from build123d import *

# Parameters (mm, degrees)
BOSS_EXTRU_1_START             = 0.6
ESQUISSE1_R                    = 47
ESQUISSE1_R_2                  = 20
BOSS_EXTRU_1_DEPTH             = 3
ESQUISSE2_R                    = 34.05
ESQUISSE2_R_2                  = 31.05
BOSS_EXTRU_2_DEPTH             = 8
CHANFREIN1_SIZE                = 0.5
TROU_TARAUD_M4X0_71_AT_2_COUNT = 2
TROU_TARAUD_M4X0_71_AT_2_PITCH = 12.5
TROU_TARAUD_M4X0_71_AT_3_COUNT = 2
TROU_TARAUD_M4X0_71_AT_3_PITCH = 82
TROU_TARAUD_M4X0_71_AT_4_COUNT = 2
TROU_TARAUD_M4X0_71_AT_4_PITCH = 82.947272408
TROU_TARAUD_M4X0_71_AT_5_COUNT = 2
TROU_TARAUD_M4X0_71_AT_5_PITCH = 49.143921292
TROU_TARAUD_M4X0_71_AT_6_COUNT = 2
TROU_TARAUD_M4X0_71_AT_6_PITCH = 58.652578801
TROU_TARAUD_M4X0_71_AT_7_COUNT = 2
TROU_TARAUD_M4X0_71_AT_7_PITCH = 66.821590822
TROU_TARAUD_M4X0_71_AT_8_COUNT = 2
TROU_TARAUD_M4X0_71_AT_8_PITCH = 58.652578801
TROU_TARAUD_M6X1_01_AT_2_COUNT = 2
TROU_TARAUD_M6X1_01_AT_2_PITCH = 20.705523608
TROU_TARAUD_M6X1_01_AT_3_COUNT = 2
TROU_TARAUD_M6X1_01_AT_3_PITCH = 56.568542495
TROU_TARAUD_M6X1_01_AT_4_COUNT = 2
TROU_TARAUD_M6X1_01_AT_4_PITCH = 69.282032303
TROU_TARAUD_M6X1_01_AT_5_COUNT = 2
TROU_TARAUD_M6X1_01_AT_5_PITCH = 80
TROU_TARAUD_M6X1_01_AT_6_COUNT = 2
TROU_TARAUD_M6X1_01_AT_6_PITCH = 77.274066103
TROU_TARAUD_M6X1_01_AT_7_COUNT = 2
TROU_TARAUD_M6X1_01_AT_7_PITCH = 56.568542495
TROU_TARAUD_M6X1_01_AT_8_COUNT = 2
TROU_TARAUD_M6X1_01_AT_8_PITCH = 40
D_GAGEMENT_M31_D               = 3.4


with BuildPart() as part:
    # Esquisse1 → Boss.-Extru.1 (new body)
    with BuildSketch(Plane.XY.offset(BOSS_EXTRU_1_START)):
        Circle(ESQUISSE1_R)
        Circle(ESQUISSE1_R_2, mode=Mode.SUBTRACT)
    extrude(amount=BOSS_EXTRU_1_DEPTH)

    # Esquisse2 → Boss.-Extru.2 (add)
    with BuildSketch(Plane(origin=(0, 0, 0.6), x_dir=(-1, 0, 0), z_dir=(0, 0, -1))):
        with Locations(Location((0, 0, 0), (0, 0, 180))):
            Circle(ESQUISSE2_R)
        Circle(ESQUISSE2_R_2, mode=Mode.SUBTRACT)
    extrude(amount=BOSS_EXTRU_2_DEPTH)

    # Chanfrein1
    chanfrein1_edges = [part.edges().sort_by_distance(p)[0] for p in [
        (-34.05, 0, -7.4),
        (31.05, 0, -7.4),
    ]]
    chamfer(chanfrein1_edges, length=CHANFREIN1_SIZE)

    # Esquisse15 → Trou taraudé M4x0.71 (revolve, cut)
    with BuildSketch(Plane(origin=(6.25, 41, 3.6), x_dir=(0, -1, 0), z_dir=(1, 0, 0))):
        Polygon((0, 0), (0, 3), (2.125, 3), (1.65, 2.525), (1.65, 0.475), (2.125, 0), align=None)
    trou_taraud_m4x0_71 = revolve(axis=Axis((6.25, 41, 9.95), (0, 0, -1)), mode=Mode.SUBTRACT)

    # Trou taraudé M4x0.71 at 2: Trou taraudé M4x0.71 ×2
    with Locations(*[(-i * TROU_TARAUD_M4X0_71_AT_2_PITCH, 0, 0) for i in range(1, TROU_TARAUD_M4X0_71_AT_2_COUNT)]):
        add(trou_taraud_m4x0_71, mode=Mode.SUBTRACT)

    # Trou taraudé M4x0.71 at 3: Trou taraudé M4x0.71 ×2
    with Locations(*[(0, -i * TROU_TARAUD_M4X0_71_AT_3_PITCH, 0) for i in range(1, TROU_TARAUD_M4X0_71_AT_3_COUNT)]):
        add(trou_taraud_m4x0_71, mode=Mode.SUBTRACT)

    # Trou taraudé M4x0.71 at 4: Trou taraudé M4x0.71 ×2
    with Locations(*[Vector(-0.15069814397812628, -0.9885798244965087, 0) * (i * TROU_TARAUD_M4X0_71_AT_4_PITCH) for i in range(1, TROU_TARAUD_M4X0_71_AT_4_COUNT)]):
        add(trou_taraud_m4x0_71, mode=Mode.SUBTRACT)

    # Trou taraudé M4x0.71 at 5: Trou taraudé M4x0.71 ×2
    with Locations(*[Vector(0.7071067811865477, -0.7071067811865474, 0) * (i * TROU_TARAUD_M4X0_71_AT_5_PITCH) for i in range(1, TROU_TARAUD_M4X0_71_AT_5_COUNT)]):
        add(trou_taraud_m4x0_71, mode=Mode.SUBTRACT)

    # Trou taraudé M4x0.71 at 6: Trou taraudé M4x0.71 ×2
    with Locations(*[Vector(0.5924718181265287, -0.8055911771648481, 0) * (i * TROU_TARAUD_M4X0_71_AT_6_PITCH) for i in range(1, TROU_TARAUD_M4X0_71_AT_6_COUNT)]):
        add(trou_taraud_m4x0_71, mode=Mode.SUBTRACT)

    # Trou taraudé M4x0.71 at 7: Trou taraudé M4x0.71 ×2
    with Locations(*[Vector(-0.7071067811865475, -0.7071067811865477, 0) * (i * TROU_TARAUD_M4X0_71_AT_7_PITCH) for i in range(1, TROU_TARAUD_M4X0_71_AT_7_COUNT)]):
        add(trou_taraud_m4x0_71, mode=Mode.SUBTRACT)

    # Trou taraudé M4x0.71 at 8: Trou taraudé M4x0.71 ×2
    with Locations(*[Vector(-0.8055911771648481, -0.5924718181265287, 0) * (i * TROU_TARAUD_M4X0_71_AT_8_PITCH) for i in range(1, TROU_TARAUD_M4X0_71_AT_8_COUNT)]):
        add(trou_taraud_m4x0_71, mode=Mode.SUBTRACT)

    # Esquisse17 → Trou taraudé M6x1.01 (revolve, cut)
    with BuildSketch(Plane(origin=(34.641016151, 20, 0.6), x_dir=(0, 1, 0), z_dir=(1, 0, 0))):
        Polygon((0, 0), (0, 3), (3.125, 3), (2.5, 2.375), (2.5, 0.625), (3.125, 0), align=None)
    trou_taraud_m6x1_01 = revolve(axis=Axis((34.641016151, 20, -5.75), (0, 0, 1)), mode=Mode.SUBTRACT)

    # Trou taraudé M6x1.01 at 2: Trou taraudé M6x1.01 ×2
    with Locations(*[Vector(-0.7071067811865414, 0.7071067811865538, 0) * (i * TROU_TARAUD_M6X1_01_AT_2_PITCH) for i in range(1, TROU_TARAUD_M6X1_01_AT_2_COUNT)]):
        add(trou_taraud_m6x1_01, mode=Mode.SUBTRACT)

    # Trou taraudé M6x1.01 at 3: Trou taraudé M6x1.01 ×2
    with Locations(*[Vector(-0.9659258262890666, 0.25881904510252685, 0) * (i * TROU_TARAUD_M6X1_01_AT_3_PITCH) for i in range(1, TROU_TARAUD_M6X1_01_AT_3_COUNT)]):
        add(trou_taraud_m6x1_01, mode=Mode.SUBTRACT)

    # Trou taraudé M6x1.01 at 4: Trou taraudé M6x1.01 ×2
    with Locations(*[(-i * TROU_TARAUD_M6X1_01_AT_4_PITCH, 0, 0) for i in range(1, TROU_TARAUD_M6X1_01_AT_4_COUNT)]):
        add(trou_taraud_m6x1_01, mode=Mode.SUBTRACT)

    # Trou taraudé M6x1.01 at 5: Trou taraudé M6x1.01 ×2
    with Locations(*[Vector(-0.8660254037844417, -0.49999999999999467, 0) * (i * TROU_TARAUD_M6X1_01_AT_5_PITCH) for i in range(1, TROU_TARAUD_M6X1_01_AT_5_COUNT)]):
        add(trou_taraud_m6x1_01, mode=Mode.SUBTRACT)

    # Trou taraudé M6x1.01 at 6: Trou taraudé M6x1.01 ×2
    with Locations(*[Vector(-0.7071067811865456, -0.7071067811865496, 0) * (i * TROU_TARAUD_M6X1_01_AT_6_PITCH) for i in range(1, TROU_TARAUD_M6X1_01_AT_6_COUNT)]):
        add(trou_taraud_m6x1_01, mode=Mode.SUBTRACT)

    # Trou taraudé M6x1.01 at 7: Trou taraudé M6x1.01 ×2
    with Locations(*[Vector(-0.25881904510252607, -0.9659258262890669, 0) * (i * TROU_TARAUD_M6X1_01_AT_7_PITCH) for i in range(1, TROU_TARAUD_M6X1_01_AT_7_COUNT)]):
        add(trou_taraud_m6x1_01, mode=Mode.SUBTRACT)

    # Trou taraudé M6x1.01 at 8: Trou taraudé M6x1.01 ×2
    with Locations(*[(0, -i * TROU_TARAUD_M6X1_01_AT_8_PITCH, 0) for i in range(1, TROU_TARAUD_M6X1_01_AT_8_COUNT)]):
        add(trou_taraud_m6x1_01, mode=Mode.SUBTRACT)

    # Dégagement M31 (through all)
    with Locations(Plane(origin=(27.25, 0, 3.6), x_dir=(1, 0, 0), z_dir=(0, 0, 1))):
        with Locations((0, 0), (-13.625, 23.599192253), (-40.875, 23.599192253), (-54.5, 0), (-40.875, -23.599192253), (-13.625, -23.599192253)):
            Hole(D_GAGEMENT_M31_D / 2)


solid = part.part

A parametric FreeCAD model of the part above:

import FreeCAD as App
import Part
import Sketcher


def edges_at(feature, points):
    """Names of the edges that pass closest to the given points."""
    edges = feature.Shape.Edges
    near = lambda p: min(range(len(edges)), key=lambda i: edges[i].distToShape(Part.Vertex(*p))[0])
    return sorted({f"Edge{near(p) + 1}" for p in points})

doc = App.newDocument("Part")
body = doc.addObject("PartDesign::Body", "Body")

# Sketch on XY plane
sketch1 = body.newObject("Sketcher::SketchObject", "Sketch")
sketch1.AttachmentSupport = (doc.getObject("XY_Plane"), [""])
sketch1.MapMode = "FlatFace"
sketch1.AttachmentOffset = App.Placement(App.Vector(0, 0, 0.6), App.Rotation())
sketch1.addGeometry(Part.Circle(App.Vector(0, 0, 0), App.Vector(0, 0, 1), 47), False)
sketch1.addGeometry(Part.Circle(App.Vector(0, 0, 0), App.Vector(0, 0, 1), 20), False)
sketch1.addConstraint(Sketcher.Constraint("Coincident", 0, 3, -1, 1))
sketch1.addConstraint(Sketcher.Constraint("Coincident", 1, 3, -1, 1))
sketch1.addConstraint(Sketcher.Constraint("Diameter", 0, 94.0))
sketch1.addConstraint(Sketcher.Constraint("Diameter", 1, 40.0))
pad1 = body.newObject("PartDesign::Pad", "Pad")
pad1.Profile = sketch1
pad1.Length = 3

# Sketch on XY plane
sketch2 = body.newObject("Sketcher::SketchObject", "Sketch001")
sketch2.AttachmentSupport = (doc.getObject("XY_Plane"), [""])
sketch2.MapMode = "FlatFace"
sketch2.AttachmentOffset = App.Placement(App.Vector(0, 0, 0.6), App.Rotation())
sketch2.addGeometry(Part.Circle(App.Vector(0, 0, 0), App.Vector(0, 0, 1), 34.05), False)
sketch2.addGeometry(Part.Circle(App.Vector(0, 0, 0), App.Vector(0, 0, 1), 31.05), False)
sketch2.addConstraint(Sketcher.Constraint("Coincident", 0, 3, -1, 1))
sketch2.addConstraint(Sketcher.Constraint("Coincident", 1, 3, -1, 1))
sketch2.addConstraint(Sketcher.Constraint("Diameter", 0, 68.1))
sketch2.addConstraint(Sketcher.Constraint("Diameter", 1, 62.1))
pad2 = body.newObject("PartDesign::Pad", "Pad001")
pad2.Profile = sketch2
pad2.Length = 8
pad2.Reversed = True
doc.recompute()

chamfer = body.newObject("PartDesign::Chamfer", "Chamfer")
chamfer.Base = (pad2, edges_at(pad2, [(-34.05, 0, -7.4), (31.05, 0, -7.4)]))
chamfer.Size = 0.5

# Sketch on YZ plane
sketch3 = body.newObject("Sketcher::SketchObject", "Sketch002")
sketch3.AttachmentSupport = (doc.getObject("YZ_Plane"), [""])
sketch3.MapMode = "FlatFace"
sketch3.AttachmentOffset = App.Placement(App.Vector(0, 0, 6.25), App.Rotation())
sketch3.addGeometry(Part.LineSegment(App.Vector(41, 0.6, 0), App.Vector(41, 3.6, 0)), False)
sketch3.addGeometry(Part.LineSegment(App.Vector(41, 3.6, 0), App.Vector(38.875, 3.6, 0)), False)
sketch3.addGeometry(Part.LineSegment(App.Vector(38.875, 3.6, 0), App.Vector(39.35, 3.125, 0)), False)
sketch3.addGeometry(Part.LineSegment(App.Vector(39.35, 3.125, 0), App.Vector(39.35, 1.075, 0)), False)
sketch3.addGeometry(Part.LineSegment(App.Vector(39.35, 1.075, 0), App.Vector(38.875, 0.6, 0)), False)
sketch3.addGeometry(Part.LineSegment(App.Vector(38.875, 0.6, 0), App.Vector(41, 0.6, 0)), False)
sketch3.addGeometry(Part.LineSegment(App.Vector(41, 3.6, 0), App.Vector(41, 0.6, 0)), True)  # axis
sketch3.addConstraint(Sketcher.Constraint("Coincident", 0, 2, 1, 1))
sketch3.addConstraint(Sketcher.Constraint("Coincident", 1, 2, 2, 1))
sketch3.addConstraint(Sketcher.Constraint("Coincident", 2, 2, 3, 1))
sketch3.addConstraint(Sketcher.Constraint("Coincident", 3, 2, 4, 1))
sketch3.addConstraint(Sketcher.Constraint("Coincident", 4, 2, 5, 1))
sketch3.addConstraint(Sketcher.Constraint("Coincident", 5, 2, 0, 1))
sketch3.addConstraint(Sketcher.Constraint("Vertical", 0))
sketch3.addConstraint(Sketcher.Constraint("Horizontal", 1))
sketch3.addConstraint(Sketcher.Constraint("Vertical", 3))
sketch3.addConstraint(Sketcher.Constraint("Horizontal", 5))
sketch3.addConstraint(Sketcher.Constraint("Vertical", 6))
sketch3.addConstraint(Sketcher.Constraint("Coincident", 6, 1, 0, 2))
sketch3.addConstraint(Sketcher.Constraint("Perpendicular", 2, 4))
sketch3.addConstraint(Sketcher.Constraint("Horizontal", 4, 2, 6, 2))
sketch3.addConstraint(Sketcher.Constraint("Vertical", 1, 2, 4, 2))
sketch3.addConstraint(Sketcher.Constraint("Equal", 2, 4))
sketch3.addConstraint(Sketcher.Constraint("DistanceY", 0, 1, 0, 2, 3.0))
sketch3.addConstraint(Sketcher.Constraint("DistanceX", -1, 1, 0, 2, 41.0))
sketch3.addConstraint(Sketcher.Constraint("DistanceY", 3, 2, 3, 1, 2.05))
sketch3.addConstraint(Sketcher.Constraint("DistanceY", -1, 1, 0, 2, 3.6))
sketch3.addConstraint(Sketcher.Constraint("DistanceX", 1, 2, 1, 1, 2.125))
groove = body.newObject("PartDesign::Groove", "Groove")
groove.Profile = sketch3
groove.ReferenceAxis = (sketch3, ["Axis0"])
groove.Angle = 360
doc.recompute()

linearpattern = body.newObject("PartDesign::LinearPattern", "LinearPattern")
linearpattern.Originals = [groove]
linearpattern.Direction = (doc.getObject("X_Axis"), [""])
linearpattern.Mode = "offset"
linearpattern.Offset = 12.5
linearpattern.Occurrences = 2
linearpattern.Reversed = True
body.Tip = linearpattern
doc.recompute()

linearpattern2 = body.newObject("PartDesign::LinearPattern", "LinearPattern001")
linearpattern2.Originals = [groove]
linearpattern2.Direction = (doc.getObject("Y_Axis"), [""])
linearpattern2.Mode = "offset"
linearpattern2.Offset = 82
linearpattern2.Occurrences = 2
linearpattern2.Reversed = True
body.Tip = linearpattern2
doc.recompute()

datumline = body.newObject("PartDesign::Line", "DatumLine")
datumline.Placement = App.Placement(App.Vector(0, 0, 0), App.Rotation(App.Vector(0, 0, 1), App.Vector(-0.150698144, -0.988579824, 0)))
linearpattern3 = body.newObject("PartDesign::LinearPattern", "LinearPattern002")
linearpattern3.Originals = [groove]
linearpattern3.Direction = (datumline, [""])
linearpattern3.Mode = "offset"
linearpattern3.Offset = 82.947272
linearpattern3.Occurrences = 2
body.Tip = linearpattern3
doc.recompute()

datumline2 = body.newObject("PartDesign::Line", "DatumLine001")
datumline2.Placement = App.Placement(App.Vector(0, 0, 0), App.Rotation(App.Vector(0, 0, 1), App.Vector(0.707106781, -0.707106781, 0)))
linearpattern4 = body.newObject("PartDesign::LinearPattern", "LinearPattern003")
linearpattern4.Originals = [groove]
linearpattern4.Direction = (datumline2, [""])
linearpattern4.Mode = "offset"
linearpattern4.Offset = 49.143921
linearpattern4.Occurrences = 2
body.Tip = linearpattern4
doc.recompute()

datumline3 = body.newObject("PartDesign::Line", "DatumLine002")
datumline3.Placement = App.Placement(App.Vector(0, 0, 0), App.Rotation(App.Vector(0, 0, 1), App.Vector(0.592471818, -0.805591177, 0)))
linearpattern5 = body.newObject("PartDesign::LinearPattern", "LinearPattern004")
linearpattern5.Originals = [groove]
linearpattern5.Direction = (datumline3, [""])
linearpattern5.Mode = "offset"
linearpattern5.Offset = 58.652579
linearpattern5.Occurrences = 2
body.Tip = linearpattern5
doc.recompute()

datumline4 = body.newObject("PartDesign::Line", "DatumLine003")
datumline4.Placement = App.Placement(App.Vector(0, 0, 0), App.Rotation(App.Vector(0, 0, 1), App.Vector(-0.707106781, -0.707106781, 0)))
linearpattern6 = body.newObject("PartDesign::LinearPattern", "LinearPattern005")
linearpattern6.Originals = [groove]
linearpattern6.Direction = (datumline4, [""])
linearpattern6.Mode = "offset"
linearpattern6.Offset = 66.821591
linearpattern6.Occurrences = 2
body.Tip = linearpattern6
doc.recompute()

datumline5 = body.newObject("PartDesign::Line", "DatumLine004")
datumline5.Placement = App.Placement(App.Vector(0, 0, 0), App.Rotation(App.Vector(0, 0, 1), App.Vector(-0.805591177, -0.592471818, 0)))
linearpattern7 = body.newObject("PartDesign::LinearPattern", "LinearPattern006")
linearpattern7.Originals = [groove]
linearpattern7.Direction = (datumline5, [""])
linearpattern7.Mode = "offset"
linearpattern7.Offset = 58.652579
linearpattern7.Occurrences = 2
body.Tip = linearpattern7

# Sketch on YZ plane
sketch4 = body.newObject("Sketcher::SketchObject", "Sketch003")
sketch4.AttachmentSupport = (doc.getObject("YZ_Plane"), [""])
sketch4.MapMode = "FlatFace"
sketch4.AttachmentOffset = App.Placement(App.Vector(0, 0, 34.641016), App.Rotation())
sketch4.addGeometry(Part.LineSegment(App.Vector(20, 3.6, 0), App.Vector(20, 0.6, 0)), False)
sketch4.addGeometry(Part.LineSegment(App.Vector(20, 0.6, 0), App.Vector(23.125, 0.6, 0)), False)
sketch4.addGeometry(Part.LineSegment(App.Vector(23.125, 0.6, 0), App.Vector(22.5, 1.225, 0)), False)
sketch4.addGeometry(Part.LineSegment(App.Vector(22.5, 1.225, 0), App.Vector(22.5, 2.975, 0)), False)
sketch4.addGeometry(Part.LineSegment(App.Vector(22.5, 2.975, 0), App.Vector(23.125, 3.6, 0)), False)
sketch4.addGeometry(Part.LineSegment(App.Vector(23.125, 3.6, 0), App.Vector(20, 3.6, 0)), False)
sketch4.addGeometry(Part.LineSegment(App.Vector(20, 0.6, 0), App.Vector(20, 3.6, 0)), True)  # axis
sketch4.addConstraint(Sketcher.Constraint("Coincident", 0, 2, 1, 1))
sketch4.addConstraint(Sketcher.Constraint("Coincident", 1, 2, 2, 1))
sketch4.addConstraint(Sketcher.Constraint("Coincident", 2, 2, 3, 1))
sketch4.addConstraint(Sketcher.Constraint("Coincident", 3, 2, 4, 1))
sketch4.addConstraint(Sketcher.Constraint("Coincident", 4, 2, 5, 1))
sketch4.addConstraint(Sketcher.Constraint("Coincident", 5, 2, 0, 1))
sketch4.addConstraint(Sketcher.Constraint("Vertical", 0))
sketch4.addConstraint(Sketcher.Constraint("Horizontal", 1))
sketch4.addConstraint(Sketcher.Constraint("Vertical", 3))
sketch4.addConstraint(Sketcher.Constraint("Horizontal", 5))
sketch4.addConstraint(Sketcher.Constraint("Vertical", 6))
sketch4.addConstraint(Sketcher.Constraint("Coincident", 6, 1, 0, 2))
sketch4.addConstraint(Sketcher.Constraint("Perpendicular", 2, 4))
sketch4.addConstraint(Sketcher.Constraint("Horizontal", 4, 2, 6, 2))
sketch4.addConstraint(Sketcher.Constraint("Vertical", 1, 2, 4, 2))
sketch4.addConstraint(Sketcher.Constraint("Equal", 2, 4))
sketch4.addConstraint(Sketcher.Constraint("DistanceY", 0, 2, 0, 1, 3.0))
sketch4.addConstraint(Sketcher.Constraint("DistanceX", -1, 1, 0, 2, 20.0))
sketch4.addConstraint(Sketcher.Constraint("DistanceY", 3, 1, 3, 2, 1.75))
sketch4.addConstraint(Sketcher.Constraint("DistanceY", -1, 1, 0, 2, 0.6))
sketch4.addConstraint(Sketcher.Constraint("DistanceX", -1, 1, 2, 2, 22.5))
groove2 = body.newObject("PartDesign::Groove", "Groove001")
groove2.Profile = sketch4
groove2.ReferenceAxis = (sketch4, ["Axis0"])
groove2.Angle = 360
doc.recompute()

datumline6 = body.newObject("PartDesign::Line", "DatumLine005")
datumline6.Placement = App.Placement(App.Vector(0, 0, 0), App.Rotation(App.Vector(0, 0, 1), App.Vector(-0.707106781, 0.707106781, 0)))
linearpattern8 = body.newObject("PartDesign::LinearPattern", "LinearPattern007")
linearpattern8.Originals = [groove2]
linearpattern8.Direction = (datumline6, [""])
linearpattern8.Mode = "offset"
linearpattern8.Offset = 20.705524
linearpattern8.Occurrences = 2
body.Tip = linearpattern8
doc.recompute()

datumline7 = body.newObject("PartDesign::Line", "DatumLine006")
datumline7.Placement = App.Placement(App.Vector(0, 0, 0), App.Rotation(App.Vector(0, 0, 1), App.Vector(-0.965925826, 0.258819045, 0)))
linearpattern9 = body.newObject("PartDesign::LinearPattern", "LinearPattern008")
linearpattern9.Originals = [groove2]
linearpattern9.Direction = (datumline7, [""])
linearpattern9.Mode = "offset"
linearpattern9.Offset = 56.568542
linearpattern9.Occurrences = 2
body.Tip = linearpattern9
doc.recompute()

linearpattern10 = body.newObject("PartDesign::LinearPattern", "LinearPattern009")
linearpattern10.Originals = [groove2]
linearpattern10.Direction = (doc.getObject("X_Axis"), [""])
linearpattern10.Mode = "offset"
linearpattern10.Offset = 69.282032
linearpattern10.Occurrences = 2
linearpattern10.Reversed = True
body.Tip = linearpattern10
doc.recompute()

datumline8 = body.newObject("PartDesign::Line", "DatumLine007")
datumline8.Placement = App.Placement(App.Vector(0, 0, 0), App.Rotation(App.Vector(0, 0, 1), App.Vector(-0.866025404, -0.5, 0)))
linearpattern11 = body.newObject("PartDesign::LinearPattern", "LinearPattern010")
linearpattern11.Originals = [groove2]
linearpattern11.Direction = (datumline8, [""])
linearpattern11.Mode = "offset"
linearpattern11.Offset = 80
linearpattern11.Occurrences = 2
body.Tip = linearpattern11
doc.recompute()

datumline9 = body.newObject("PartDesign::Line", "DatumLine008")
datumline9.Placement = App.Placement(App.Vector(0, 0, 0), App.Rotation(App.Vector(0, 0, 1), App.Vector(-0.707106781, -0.707106781, 0)))
linearpattern12 = body.newObject("PartDesign::LinearPattern", "LinearPattern011")
linearpattern12.Originals = [groove2]
linearpattern12.Direction = (datumline9, [""])
linearpattern12.Mode = "offset"
linearpattern12.Offset = 77.274066
linearpattern12.Occurrences = 2
body.Tip = linearpattern12
doc.recompute()

datumline10 = body.newObject("PartDesign::Line", "DatumLine009")
datumline10.Placement = App.Placement(App.Vector(0, 0, 0), App.Rotation(App.Vector(0, 0, 1), App.Vector(-0.258819045, -0.965925826, 0)))
linearpattern13 = body.newObject("PartDesign::LinearPattern", "LinearPattern012")
linearpattern13.Originals = [groove2]
linearpattern13.Direction = (datumline10, [""])
linearpattern13.Mode = "offset"
linearpattern13.Offset = 56.568542
linearpattern13.Occurrences = 2
body.Tip = linearpattern13
doc.recompute()

linearpattern14 = body.newObject("PartDesign::LinearPattern", "LinearPattern013")
linearpattern14.Originals = [groove2]
linearpattern14.Direction = (doc.getObject("Y_Axis"), [""])
linearpattern14.Mode = "offset"
linearpattern14.Offset = 40
linearpattern14.Occurrences = 2
linearpattern14.Reversed = True
body.Tip = linearpattern14

# Sketch on XY plane
sketch5 = body.newObject("Sketcher::SketchObject", "Sketch004")
sketch5.AttachmentSupport = (doc.getObject("XY_Plane"), [""])
sketch5.MapMode = "FlatFace"
sketch5.AttachmentOffset = App.Placement(App.Vector(0, 0, 3.6), App.Rotation())
sketch5.addGeometry(Part.Circle(App.Vector(27.25, 0, 0), App.Vector(0, 0, 1), 1.7), False)
sketch5.addGeometry(Part.Circle(App.Vector(13.625, 23.599192, 0), App.Vector(0, 0, 1), 1.7), False)
sketch5.addGeometry(Part.Circle(App.Vector(-13.625, 23.599192, 0), App.Vector(0, 0, 1), 1.7), False)
sketch5.addGeometry(Part.Circle(App.Vector(-27.25, 0, 0), App.Vector(0, 0, 1), 1.7), False)
sketch5.addGeometry(Part.Circle(App.Vector(-13.625, -23.599192, 0), App.Vector(0, 0, 1), 1.7), False)
sketch5.addGeometry(Part.Circle(App.Vector(13.625, -23.599192, 0), App.Vector(0, 0, 1), 1.7), False)
sketch5.addConstraint(Sketcher.Constraint("Equal", 0, 1))
sketch5.addConstraint(Sketcher.Constraint("Equal", 1, 2))
sketch5.addConstraint(Sketcher.Constraint("Equal", 2, 3))
sketch5.addConstraint(Sketcher.Constraint("Equal", 3, 4))
sketch5.addConstraint(Sketcher.Constraint("Equal", 4, 5))
sketch5.addConstraint(Sketcher.Constraint("Symmetric", 0, 3, 3, 3, -1, 1))
sketch5.addConstraint(Sketcher.Constraint("Symmetric", 1, 3, 4, 3, -1, 1))
sketch5.addConstraint(Sketcher.Constraint("Symmetric", 2, 3, 5, 3, -1, 1))
sketch5.addConstraint(Sketcher.Constraint("Symmetric", 1, 3, 2, 3, -2))
sketch5.addConstraint(Sketcher.Constraint("PointOnObject", 0, 3, -1))
sketch5.addConstraint(Sketcher.Constraint("Diameter", 0, 3.4))
sketch5.addConstraint(Sketcher.Constraint("DistanceX", 3, 3, 0, 3, 54.5))
sketch5.addConstraint(Sketcher.Constraint("DistanceX", 2, 3, 1, 3, 27.25))
sketch5.addConstraint(Sketcher.Constraint("DistanceY", -1, 1, 1, 3, 23.599192))
doc.recompute()
hole = body.newObject("PartDesign::Hole", "Hole")
hole.Profile = sketch5
hole.ThreadType = "None"
hole.Diameter = 3.4
hole.DepthType = "ThroughAll"

doc.recompute()
